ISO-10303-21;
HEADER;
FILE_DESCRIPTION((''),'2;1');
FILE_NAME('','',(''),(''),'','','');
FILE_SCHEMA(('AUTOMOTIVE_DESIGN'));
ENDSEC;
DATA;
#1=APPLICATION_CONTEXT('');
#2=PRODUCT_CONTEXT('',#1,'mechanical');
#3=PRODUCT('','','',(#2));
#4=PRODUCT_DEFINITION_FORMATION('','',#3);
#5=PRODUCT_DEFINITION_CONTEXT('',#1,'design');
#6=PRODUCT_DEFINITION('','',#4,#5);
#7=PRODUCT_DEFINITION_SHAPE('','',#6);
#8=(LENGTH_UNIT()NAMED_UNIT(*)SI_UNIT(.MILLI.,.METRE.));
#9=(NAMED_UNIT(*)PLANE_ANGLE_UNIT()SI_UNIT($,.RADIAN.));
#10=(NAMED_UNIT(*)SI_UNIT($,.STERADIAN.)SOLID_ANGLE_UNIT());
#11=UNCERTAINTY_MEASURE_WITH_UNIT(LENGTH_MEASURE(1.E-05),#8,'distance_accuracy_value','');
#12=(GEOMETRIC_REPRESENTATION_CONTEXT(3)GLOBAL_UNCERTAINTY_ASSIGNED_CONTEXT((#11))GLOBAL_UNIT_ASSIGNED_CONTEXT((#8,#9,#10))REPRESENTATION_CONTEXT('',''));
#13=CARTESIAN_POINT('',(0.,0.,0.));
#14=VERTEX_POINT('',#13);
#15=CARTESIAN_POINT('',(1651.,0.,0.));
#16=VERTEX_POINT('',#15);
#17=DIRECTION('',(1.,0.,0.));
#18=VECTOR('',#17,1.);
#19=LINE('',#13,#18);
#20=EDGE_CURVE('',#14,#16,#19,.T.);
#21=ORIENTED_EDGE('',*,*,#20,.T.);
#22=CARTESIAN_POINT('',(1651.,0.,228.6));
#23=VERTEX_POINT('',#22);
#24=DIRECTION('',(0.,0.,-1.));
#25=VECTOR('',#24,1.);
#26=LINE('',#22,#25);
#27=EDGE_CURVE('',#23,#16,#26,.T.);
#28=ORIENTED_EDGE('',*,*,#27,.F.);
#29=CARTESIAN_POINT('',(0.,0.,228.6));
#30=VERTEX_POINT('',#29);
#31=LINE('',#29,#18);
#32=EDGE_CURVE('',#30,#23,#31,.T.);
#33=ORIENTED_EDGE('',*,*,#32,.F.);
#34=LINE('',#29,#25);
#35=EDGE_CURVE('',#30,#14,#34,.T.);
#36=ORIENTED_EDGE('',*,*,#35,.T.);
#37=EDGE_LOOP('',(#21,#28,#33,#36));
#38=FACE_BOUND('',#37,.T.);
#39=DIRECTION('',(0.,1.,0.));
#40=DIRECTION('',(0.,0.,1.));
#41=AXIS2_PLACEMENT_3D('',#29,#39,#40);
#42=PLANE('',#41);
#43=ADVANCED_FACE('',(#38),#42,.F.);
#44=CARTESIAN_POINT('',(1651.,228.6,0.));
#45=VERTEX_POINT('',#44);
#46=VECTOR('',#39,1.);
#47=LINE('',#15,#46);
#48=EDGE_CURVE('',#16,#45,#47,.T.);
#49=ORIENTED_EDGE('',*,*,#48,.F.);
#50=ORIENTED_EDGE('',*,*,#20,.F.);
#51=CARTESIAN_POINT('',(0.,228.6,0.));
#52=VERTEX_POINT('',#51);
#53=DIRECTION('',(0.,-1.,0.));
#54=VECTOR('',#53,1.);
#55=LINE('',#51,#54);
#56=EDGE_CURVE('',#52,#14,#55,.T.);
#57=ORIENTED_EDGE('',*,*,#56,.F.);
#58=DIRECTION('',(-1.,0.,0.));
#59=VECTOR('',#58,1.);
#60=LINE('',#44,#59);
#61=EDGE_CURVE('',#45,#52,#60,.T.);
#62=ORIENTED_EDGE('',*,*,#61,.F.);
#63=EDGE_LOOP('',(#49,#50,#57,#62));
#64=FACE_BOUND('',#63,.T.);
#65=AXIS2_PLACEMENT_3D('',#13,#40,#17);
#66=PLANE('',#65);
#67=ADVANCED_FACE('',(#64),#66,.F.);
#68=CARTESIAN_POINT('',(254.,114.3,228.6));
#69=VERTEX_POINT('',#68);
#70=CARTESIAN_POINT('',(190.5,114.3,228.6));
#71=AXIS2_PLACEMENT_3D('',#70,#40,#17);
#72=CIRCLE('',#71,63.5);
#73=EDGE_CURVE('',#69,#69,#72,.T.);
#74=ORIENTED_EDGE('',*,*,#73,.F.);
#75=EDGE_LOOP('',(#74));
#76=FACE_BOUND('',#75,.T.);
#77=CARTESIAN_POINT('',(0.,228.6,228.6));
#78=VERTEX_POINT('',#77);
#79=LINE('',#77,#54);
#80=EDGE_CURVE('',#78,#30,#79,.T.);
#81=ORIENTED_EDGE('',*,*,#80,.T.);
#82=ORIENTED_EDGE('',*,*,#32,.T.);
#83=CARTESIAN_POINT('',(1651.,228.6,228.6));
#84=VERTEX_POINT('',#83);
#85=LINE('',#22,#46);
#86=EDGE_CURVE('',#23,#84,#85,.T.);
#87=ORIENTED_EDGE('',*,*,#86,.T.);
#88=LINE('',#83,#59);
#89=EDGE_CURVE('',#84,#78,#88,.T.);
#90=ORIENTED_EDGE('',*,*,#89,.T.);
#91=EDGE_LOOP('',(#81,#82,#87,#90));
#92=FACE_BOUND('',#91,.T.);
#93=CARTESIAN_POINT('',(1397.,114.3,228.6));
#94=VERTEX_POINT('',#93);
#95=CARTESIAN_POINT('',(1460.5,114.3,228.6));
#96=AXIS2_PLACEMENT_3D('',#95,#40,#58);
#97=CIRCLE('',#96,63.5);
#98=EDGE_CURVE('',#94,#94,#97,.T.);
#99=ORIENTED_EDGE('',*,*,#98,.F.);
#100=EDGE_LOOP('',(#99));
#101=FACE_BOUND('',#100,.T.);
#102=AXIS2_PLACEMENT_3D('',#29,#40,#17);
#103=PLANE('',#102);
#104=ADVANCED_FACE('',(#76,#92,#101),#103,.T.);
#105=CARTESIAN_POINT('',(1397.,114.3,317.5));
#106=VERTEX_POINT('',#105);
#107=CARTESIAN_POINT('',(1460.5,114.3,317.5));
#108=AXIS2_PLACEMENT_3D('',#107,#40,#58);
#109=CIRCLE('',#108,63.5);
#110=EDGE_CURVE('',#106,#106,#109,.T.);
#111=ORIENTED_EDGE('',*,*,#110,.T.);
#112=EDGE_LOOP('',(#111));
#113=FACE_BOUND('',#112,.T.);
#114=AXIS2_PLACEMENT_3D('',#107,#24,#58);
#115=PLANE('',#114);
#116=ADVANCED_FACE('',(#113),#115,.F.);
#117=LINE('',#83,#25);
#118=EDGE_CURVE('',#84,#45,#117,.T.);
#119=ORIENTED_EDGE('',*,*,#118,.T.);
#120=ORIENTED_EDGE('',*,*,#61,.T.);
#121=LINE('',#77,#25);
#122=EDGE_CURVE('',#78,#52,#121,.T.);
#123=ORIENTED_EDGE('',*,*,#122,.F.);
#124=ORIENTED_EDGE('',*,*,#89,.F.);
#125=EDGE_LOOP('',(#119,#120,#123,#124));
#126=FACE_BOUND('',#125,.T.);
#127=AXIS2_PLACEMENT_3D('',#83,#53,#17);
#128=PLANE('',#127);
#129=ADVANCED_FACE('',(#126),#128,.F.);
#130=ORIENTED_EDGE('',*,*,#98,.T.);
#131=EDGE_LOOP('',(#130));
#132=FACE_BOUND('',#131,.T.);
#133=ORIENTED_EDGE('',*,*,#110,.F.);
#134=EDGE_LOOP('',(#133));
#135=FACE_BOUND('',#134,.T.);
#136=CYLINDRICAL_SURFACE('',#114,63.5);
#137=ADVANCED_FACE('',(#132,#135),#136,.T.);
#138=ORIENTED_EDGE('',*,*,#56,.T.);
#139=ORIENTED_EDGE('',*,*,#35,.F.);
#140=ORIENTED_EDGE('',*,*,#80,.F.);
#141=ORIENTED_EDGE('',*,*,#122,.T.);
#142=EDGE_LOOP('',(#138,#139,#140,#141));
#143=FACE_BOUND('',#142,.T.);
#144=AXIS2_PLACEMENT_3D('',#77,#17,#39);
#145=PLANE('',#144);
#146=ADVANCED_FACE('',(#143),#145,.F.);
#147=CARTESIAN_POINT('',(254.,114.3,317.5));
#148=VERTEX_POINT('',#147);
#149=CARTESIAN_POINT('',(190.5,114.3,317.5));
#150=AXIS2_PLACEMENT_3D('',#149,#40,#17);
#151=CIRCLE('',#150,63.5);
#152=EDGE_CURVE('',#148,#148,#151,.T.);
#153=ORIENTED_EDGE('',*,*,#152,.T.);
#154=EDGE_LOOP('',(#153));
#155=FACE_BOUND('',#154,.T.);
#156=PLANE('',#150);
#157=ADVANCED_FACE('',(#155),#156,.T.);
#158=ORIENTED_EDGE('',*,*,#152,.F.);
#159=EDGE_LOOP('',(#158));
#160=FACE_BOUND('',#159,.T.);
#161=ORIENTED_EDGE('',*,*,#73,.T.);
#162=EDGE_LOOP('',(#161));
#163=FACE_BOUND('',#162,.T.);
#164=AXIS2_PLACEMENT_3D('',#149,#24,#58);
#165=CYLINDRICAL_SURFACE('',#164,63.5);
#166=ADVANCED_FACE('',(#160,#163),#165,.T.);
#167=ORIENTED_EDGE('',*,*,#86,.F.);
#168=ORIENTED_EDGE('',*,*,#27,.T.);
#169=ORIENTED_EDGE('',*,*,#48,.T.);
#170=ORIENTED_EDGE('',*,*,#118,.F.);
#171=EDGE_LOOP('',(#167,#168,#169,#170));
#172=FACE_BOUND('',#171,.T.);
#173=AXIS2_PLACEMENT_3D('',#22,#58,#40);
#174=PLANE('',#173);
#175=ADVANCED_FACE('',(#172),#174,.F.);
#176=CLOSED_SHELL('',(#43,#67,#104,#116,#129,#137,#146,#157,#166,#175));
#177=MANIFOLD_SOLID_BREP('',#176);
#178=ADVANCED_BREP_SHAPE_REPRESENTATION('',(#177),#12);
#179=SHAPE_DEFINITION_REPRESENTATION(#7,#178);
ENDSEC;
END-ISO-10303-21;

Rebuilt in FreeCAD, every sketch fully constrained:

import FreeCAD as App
import Part
import Sketcher
Q = App.Units.Quantity

doc = App.newDocument("Part")
params = doc.addObject("Spreadsheet::Sheet", "Params")
for row, (alias, value) in enumerate([
    ("sketch1_width", "65 in"),
    ("sketch1_height", "9 in"),
    ("pad1_length", "9 in"),
    ("sketch2_diameter", "5 in"),
    ("pad2_length", "3.5 in"),
], start=1):
    params.set(f"A{row}", alias)
    params.set(f"B{row}", "=" + value)
    params.setAlias(f"B{row}", alias)

body = doc.addObject("PartDesign::Body", "Body")

# Sketch on XY plane
sketch1 = body.newObject("Sketcher::SketchObject", "Sketch")
sketch1.AttachmentSupport = (doc.getObject("XY_Plane"), [""])
sketch1.MapMode = "FlatFace"
sketch1.addGeometry([
    Part.LineSegment(App.Vector(0, 229, 0), App.Vector(0, 0, 0)),
    Part.LineSegment(App.Vector(0, 0, 0), App.Vector(1651, 0, 0)),
    Part.LineSegment(App.Vector(1651, 0, 0), App.Vector(1651, 229, 0)),
    Part.LineSegment(App.Vector(1651, 229, 0), App.Vector(0, 229, 0)),
], False)
sketch1.addConstraint([
    Sketcher.Constraint("Coincident", 0, 2, 1, 1),
    Sketcher.Constraint("Coincident", 1, 2, 2, 1),
    Sketcher.Constraint("Coincident", 2, 2, 3, 1),
    Sketcher.Constraint("Coincident", 3, 2, 0, 1),
    Sketcher.Constraint("Vertical", 0),
    Sketcher.Constraint("Horizontal", 1),
    Sketcher.Constraint("Vertical", 2),
    Sketcher.Constraint("Horizontal", 3),
    Sketcher.Constraint("Coincident", 0, 2, -1, 1),
    Sketcher.Constraint("DistanceX", 1, 1, 1, 2, Q("65 in")),
    Sketcher.Constraint("DistanceY", 0, 2, 0, 1, Q("9 in")),
])
sketch1.setExpression("Constraints[9]", "Params.sketch1_width")
sketch1.setExpression("Constraints[10]", "Params.sketch1_height")
pad1 = body.newObject("PartDesign::Pad", "Pad")
pad1.Profile = sketch1
pad1.setExpression("Length", "Params.pad1_length")

# Sketch on XY plane
sketch2 = body.newObject("Sketcher::SketchObject", "Sketch001")
sketch2.AttachmentSupport = (doc.getObject("XY_Plane"), [""])
sketch2.MapMode = "FlatFace"
sketch2.AttachmentOffset = App.Placement(App.Vector(0, 0, 9 * 25.4), App.Rotation())
sketch2.addGeometry([
    Part.Circle(App.Vector(190, 114, 0), App.Vector(0, 0, 1), 64),
    Part.Circle(App.Vector(1460, 114, 0), App.Vector(0, 0, 1), 64),
], False)
sketch2.addConstraint([
    Sketcher.Constraint("Equal", 0, 1),
    Sketcher.Constraint("Horizontal", 0, 3, 1, 3),
    Sketcher.Constraint("Diameter", 0, Q("5 in")),
    Sketcher.Constraint("DistanceX", 0, 3, 1, 3, Q("50 in")),
    Sketcher.Constraint("DistanceX", -1, 1, 0, 3, Q("7.5 in")),
    Sketcher.Constraint("DistanceY", -1, 1, 0, 3, Q("4.5 in")),
])
sketch2.setExpression("Constraints[2]", "Params.sketch2_diameter")
pad2 = body.newObject("PartDesign::Pad", "Pad001")
pad2.Profile = sketch2
pad2.setExpression("Length", "Params.pad2_length")

doc.recompute()
